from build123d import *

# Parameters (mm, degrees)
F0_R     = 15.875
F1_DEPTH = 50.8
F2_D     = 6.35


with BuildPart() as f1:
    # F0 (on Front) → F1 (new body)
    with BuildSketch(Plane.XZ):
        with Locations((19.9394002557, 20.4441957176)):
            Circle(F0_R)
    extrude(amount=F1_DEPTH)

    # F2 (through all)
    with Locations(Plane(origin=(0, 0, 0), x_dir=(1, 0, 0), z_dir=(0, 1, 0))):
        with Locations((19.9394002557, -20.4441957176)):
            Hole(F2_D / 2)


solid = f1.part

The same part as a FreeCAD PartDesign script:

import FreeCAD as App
import Part
import Sketcher
from FreeCAD import Vector
Q = App.Units.Quantity

doc = App.newDocument("Part")
body = doc.addObject("PartDesign::Body", "Body")

# Sketch on XZ plane
sketch1 = body.newObject("Sketcher::SketchObject", "Sketch")
sketch1.AttachmentSupport = (doc.getObject("XZ_Plane"), [""])
sketch1.MapMode = "FlatFace"
sketch1.addGeometry(Part.Circle(Vector(19.9394, 20.444196, 0), Vector(0, 0, 1), 15.875), False)
sketch1.addConstraint(Sketcher.Constraint("Diameter", 0, Q("1.25 in")))
sketch1.addConstraint(Sketcher.Constraint("DistanceX", -1, 1, 0, 3, Q("19.9394 mm")))
sketch1.addConstraint(Sketcher.Constraint("DistanceY", -1, 1, 0, 3, Q("20.444196 mm")))
pad1 = body.newObject("PartDesign::Pad", "Pad")
pad1.Profile = sketch1
pad1.Length = Q("2 in")

# Sketch on XZ plane
sketch2 = body.newObject("Sketcher::SketchObject", "Sketch001")
sketch2.AttachmentSupport = (doc.getObject("XZ_Plane"), [""])
sketch2.MapMode = "FlatFace"
sketch2.addGeometry(Part.Circle(Vector(19.9394, 20.444196, 0), Vector(0, 0, 1), 3.175), False)
sketch2.addConstraint(Sketcher.Constraint("Diameter", 0, Q("0.25 in")))
sketch2.addConstraint(Sketcher.Constraint("DistanceX", -1, 1, 0, 3, Q("19.9394 mm")))
sketch2.addConstraint(Sketcher.Constraint("DistanceY", -1, 1, 0, 3, Q("20.444196 mm")))
doc.recompute()
hole = body.newObject("PartDesign::Hole", "Hole")
hole.Profile = sketch2
hole.ThreadType = "None"
hole.Diameter = Q("0.25 in")
hole.DepthType = "ThroughAll"
hole.Reversed = True

doc.recompute()
